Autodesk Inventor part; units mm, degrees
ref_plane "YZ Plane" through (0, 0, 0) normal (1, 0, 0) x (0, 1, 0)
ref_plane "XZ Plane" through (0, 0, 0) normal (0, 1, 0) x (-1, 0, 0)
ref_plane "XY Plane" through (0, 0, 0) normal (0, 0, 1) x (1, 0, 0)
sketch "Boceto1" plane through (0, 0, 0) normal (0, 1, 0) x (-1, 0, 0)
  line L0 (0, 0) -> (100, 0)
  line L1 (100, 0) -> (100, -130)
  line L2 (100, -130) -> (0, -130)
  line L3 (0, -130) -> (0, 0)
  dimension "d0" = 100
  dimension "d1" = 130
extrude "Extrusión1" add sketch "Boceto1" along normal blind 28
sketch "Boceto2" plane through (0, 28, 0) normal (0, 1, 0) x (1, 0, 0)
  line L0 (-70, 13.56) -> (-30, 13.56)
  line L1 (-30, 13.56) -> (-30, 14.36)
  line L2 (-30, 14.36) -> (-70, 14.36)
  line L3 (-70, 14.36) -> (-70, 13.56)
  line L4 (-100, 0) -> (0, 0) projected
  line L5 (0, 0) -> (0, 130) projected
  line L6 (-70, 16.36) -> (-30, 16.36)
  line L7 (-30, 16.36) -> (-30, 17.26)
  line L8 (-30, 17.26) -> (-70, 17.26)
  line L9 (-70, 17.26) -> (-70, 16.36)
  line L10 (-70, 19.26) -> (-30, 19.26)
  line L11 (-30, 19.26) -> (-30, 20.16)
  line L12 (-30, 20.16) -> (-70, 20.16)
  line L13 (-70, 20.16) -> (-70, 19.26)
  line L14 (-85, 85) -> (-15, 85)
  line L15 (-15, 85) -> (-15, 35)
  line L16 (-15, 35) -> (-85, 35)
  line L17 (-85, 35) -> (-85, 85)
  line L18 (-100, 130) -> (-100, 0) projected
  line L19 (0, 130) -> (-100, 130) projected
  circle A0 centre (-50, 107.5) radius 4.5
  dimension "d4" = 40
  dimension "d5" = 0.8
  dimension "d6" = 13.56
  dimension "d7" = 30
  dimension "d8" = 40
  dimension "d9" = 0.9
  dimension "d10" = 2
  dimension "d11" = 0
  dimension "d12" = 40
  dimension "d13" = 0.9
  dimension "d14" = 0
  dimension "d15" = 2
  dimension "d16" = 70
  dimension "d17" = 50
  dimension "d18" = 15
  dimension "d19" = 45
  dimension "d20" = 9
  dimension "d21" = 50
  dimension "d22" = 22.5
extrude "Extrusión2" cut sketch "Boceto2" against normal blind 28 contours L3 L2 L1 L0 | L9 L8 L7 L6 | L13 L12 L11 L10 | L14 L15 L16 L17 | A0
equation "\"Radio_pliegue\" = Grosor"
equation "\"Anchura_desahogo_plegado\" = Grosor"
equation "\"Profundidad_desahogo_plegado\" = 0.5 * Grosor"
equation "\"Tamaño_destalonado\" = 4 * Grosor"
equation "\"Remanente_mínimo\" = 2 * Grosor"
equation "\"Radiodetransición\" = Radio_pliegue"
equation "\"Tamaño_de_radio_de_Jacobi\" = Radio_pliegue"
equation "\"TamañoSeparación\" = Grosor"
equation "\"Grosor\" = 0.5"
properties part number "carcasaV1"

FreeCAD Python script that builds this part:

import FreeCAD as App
import Part
import Sketcher
Q = App.Units.Quantity

doc = App.newDocument("Part")
body = doc.addObject("PartDesign::Body", "Body")

# Sketch on XZ plane
sketch1 = body.newObject("Sketcher::SketchObject", "Sketch")
sketch1.AttachmentSupport = (doc.getObject("XZ_Plane"), [""])
sketch1.MapMode = "FlatFace"
sketch1.addGeometry([
    Part.LineSegment(App.Vector(-100, 0, 0), App.Vector(0, 0, 0)),
    Part.LineSegment(App.Vector(0, 0, 0), App.Vector(0, -130, 0)),
    Part.LineSegment(App.Vector(0, -130, 0), App.Vector(-100, -130, 0)),
    Part.LineSegment(App.Vector(-100, -130, 0), App.Vector(-100, 0, 0)),
], False)
sketch1.addConstraint([
    Sketcher.Constraint("Coincident", 0, 2, 1, 1),
    Sketcher.Constraint("Coincident", 1, 2, 2, 1),
    Sketcher.Constraint("Coincident", 2, 2, 3, 1),
    Sketcher.Constraint("Coincident", 3, 2, 0, 1),
    Sketcher.Constraint("Horizontal", 0),
    Sketcher.Constraint("Vertical", 1),
    Sketcher.Constraint("Horizontal", 2),
    Sketcher.Constraint("Vertical", 3),
    Sketcher.Constraint("Coincident", 0, 2, -1, 1),
    Sketcher.Constraint("DistanceX", 0, 1, 0, 2, Q("100 mm")),
    Sketcher.Constraint("DistanceY", 1, 2, 1, 1, Q("130 mm")),
])
pad1 = body.newObject("PartDesign::Pad", "Pad")
pad1.Profile = sketch1
pad1.Length = 28
pad1.Reversed = True

# Sketch on XZ plane
sketch2 = body.newObject("Sketcher::SketchObject", "Sketch001")
sketch2.AttachmentSupport = (doc.getObject("XZ_Plane"), [""])
sketch2.MapMode = "FlatFace"
sketch2.AttachmentOffset = App.Placement(App.Vector(0, 0, -28), App.Rotation())
sketch2.addGeometry([
    Part.LineSegment(App.Vector(-70, -14.36, 0), App.Vector(-70, -13.56, 0)),  # 0
    Part.LineSegment(App.Vector(-70, -13.56, 0), App.Vector(-30, -13.56, 0)),  # 1
    Part.LineSegment(App.Vector(-30, -13.56, 0), App.Vector(-30, -14.36, 0)),  # 2
    Part.LineSegment(App.Vector(-30, -14.36, 0), App.Vector(-70, -14.36, 0)),  # 3
    Part.LineSegment(App.Vector(-70, -17.26, 0), App.Vector(-70, -16.36, 0)),  # 4
    Part.LineSegment(App.Vector(-70, -16.36, 0), App.Vector(-30, -16.36, 0)),  # 5
    Part.LineSegment(App.Vector(-30, -16.36, 0), App.Vector(-30, -17.26, 0)),  # 6
    Part.LineSegment(App.Vector(-30, -17.26, 0), App.Vector(-70, -17.26, 0)),  # 7
    Part.LineSegment(App.Vector(-70, -20.16, 0), App.Vector(-70, -19.26, 0)),  # 8
    Part.LineSegment(App.Vector(-70, -19.26, 0), App.Vector(-30, -19.26, 0)),  # 9
    Part.LineSegment(App.Vector(-30, -19.26, 0), App.Vector(-30, -20.16, 0)),  # 10
    Part.LineSegment(App.Vector(-30, -20.16, 0), App.Vector(-70, -20.16, 0)),  # 11
    Part.LineSegment(App.Vector(-15, -85, 0), App.Vector(-85, -85, 0)),  # 12
    Part.LineSegment(App.Vector(-85, -85, 0), App.Vector(-85, -35, 0)),  # 13
    Part.LineSegment(App.Vector(-85, -35, 0), App.Vector(-15, -35, 0)),  # 14
    Part.LineSegment(App.Vector(-15, -35, 0), App.Vector(-15, -85, 0)),  # 15
    Part.Circle(App.Vector(-50, -107.5, 0), App.Vector(0, 0, 1), 4.5),  # 16
], False)
sketch2.addConstraint([
    Sketcher.Constraint("Coincident", 0, 2, 1, 1),
    Sketcher.Constraint("Coincident", 1, 2, 2, 1),
    Sketcher.Constraint("Coincident", 2, 2, 3, 1),
    Sketcher.Constraint("Coincident", 3, 2, 0, 1),
    Sketcher.Constraint("Coincident", 4, 2, 5, 1),
    Sketcher.Constraint("Coincident", 5, 2, 6, 1),
    Sketcher.Constraint("Coincident", 6, 2, 7, 1),
    Sketcher.Constraint("Coincident", 7, 2, 4, 1),
    Sketcher.Constraint("Coincident", 8, 2, 9, 1),
    Sketcher.Constraint("Coincident", 9, 2, 10, 1),
    Sketcher.Constraint("Coincident", 10, 2, 11, 1),
    Sketcher.Constraint("Coincident", 11, 2, 8, 1),
    Sketcher.Constraint("Coincident", 12, 2, 13, 1),
    Sketcher.Constraint("Coincident", 13, 2, 14, 1),
    Sketcher.Constraint("Coincident", 14, 2, 15, 1),
    Sketcher.Constraint("Coincident", 15, 2, 12, 1),
    Sketcher.Constraint("Vertical", 0),
    Sketcher.Constraint("Horizontal", 1),
    Sketcher.Constraint("Vertical", 2),
    Sketcher.Constraint("Horizontal", 3),
    Sketcher.Constraint("Vertical", 4),
    Sketcher.Constraint("Horizontal", 5),
    Sketcher.Constraint("Vertical", 6),
    Sketcher.Constraint("Horizontal", 7),
    Sketcher.Constraint("Vertical", 8),
    Sketcher.Constraint("Horizontal", 9),
    Sketcher.Constraint("Vertical", 10),
    Sketcher.Constraint("Horizontal", 11),
    Sketcher.Constraint("Horizontal", 12),
    Sketcher.Constraint("Vertical", 13),
    Sketcher.Constraint("Horizontal", 14),
    Sketcher.Constraint("Vertical", 15),
    Sketcher.Constraint("Vertical", 3, 2, 4, 2),
    Sketcher.Constraint("Vertical", 2, 2, 5, 2),
    Sketcher.Constraint("Vertical", 7, 2, 8, 2),
    Sketcher.Constraint("Vertical", 6, 2, 9, 2),
    Sketcher.Constraint("Equal", 6, 8),
    Sketcher.Constraint("Diameter", 16, Q("9 mm")),
    Sketcher.Constraint("DistanceX", 1, 1, 1, 2, Q("40 mm")),
    Sketcher.Constraint("DistanceX", 12, 2, 12, 1, Q("70 mm")),
    Sketcher.Constraint("DistanceY", 13, 1, 13, 2, Q("50 mm")),
    Sketcher.Constraint("DistanceY", 0, 1, 0, 2, Q("0.8 mm")),
    Sketcher.Constraint("DistanceY", 4, 1, 4, 2, Q("0.9 mm")),
    Sketcher.Constraint("DistanceX", 16, 3, -1, 1, Q("50 mm")),
    Sketcher.Constraint("DistanceX", 0, 2, -1, 1, Q("70 mm")),
    Sketcher.Constraint("DistanceX", 14, 2, -1, 1, Q("15 mm")),
    Sketcher.Constraint("DistanceY", 4, 2, 3, 2, Q("2 mm")),
    Sketcher.Constraint("DistanceY", 8, 2, 7, 2, Q("2 mm")),
    Sketcher.Constraint("DistanceY", 16, 3, 12, 2, Q("22.5 mm")),
    Sketcher.Constraint("DistanceY", 0, 2, -1, 1, Q("13.56 mm")),
    Sketcher.Constraint("DistanceY", 12, 2, -1, 1, Q("85 mm")),
])
pocket1 = body.newObject("PartDesign::Pocket", "Pocket")
pocket1.Profile = sketch2
pocket1.Length = 28
pocket1.Reversed = True

doc.recompute()
